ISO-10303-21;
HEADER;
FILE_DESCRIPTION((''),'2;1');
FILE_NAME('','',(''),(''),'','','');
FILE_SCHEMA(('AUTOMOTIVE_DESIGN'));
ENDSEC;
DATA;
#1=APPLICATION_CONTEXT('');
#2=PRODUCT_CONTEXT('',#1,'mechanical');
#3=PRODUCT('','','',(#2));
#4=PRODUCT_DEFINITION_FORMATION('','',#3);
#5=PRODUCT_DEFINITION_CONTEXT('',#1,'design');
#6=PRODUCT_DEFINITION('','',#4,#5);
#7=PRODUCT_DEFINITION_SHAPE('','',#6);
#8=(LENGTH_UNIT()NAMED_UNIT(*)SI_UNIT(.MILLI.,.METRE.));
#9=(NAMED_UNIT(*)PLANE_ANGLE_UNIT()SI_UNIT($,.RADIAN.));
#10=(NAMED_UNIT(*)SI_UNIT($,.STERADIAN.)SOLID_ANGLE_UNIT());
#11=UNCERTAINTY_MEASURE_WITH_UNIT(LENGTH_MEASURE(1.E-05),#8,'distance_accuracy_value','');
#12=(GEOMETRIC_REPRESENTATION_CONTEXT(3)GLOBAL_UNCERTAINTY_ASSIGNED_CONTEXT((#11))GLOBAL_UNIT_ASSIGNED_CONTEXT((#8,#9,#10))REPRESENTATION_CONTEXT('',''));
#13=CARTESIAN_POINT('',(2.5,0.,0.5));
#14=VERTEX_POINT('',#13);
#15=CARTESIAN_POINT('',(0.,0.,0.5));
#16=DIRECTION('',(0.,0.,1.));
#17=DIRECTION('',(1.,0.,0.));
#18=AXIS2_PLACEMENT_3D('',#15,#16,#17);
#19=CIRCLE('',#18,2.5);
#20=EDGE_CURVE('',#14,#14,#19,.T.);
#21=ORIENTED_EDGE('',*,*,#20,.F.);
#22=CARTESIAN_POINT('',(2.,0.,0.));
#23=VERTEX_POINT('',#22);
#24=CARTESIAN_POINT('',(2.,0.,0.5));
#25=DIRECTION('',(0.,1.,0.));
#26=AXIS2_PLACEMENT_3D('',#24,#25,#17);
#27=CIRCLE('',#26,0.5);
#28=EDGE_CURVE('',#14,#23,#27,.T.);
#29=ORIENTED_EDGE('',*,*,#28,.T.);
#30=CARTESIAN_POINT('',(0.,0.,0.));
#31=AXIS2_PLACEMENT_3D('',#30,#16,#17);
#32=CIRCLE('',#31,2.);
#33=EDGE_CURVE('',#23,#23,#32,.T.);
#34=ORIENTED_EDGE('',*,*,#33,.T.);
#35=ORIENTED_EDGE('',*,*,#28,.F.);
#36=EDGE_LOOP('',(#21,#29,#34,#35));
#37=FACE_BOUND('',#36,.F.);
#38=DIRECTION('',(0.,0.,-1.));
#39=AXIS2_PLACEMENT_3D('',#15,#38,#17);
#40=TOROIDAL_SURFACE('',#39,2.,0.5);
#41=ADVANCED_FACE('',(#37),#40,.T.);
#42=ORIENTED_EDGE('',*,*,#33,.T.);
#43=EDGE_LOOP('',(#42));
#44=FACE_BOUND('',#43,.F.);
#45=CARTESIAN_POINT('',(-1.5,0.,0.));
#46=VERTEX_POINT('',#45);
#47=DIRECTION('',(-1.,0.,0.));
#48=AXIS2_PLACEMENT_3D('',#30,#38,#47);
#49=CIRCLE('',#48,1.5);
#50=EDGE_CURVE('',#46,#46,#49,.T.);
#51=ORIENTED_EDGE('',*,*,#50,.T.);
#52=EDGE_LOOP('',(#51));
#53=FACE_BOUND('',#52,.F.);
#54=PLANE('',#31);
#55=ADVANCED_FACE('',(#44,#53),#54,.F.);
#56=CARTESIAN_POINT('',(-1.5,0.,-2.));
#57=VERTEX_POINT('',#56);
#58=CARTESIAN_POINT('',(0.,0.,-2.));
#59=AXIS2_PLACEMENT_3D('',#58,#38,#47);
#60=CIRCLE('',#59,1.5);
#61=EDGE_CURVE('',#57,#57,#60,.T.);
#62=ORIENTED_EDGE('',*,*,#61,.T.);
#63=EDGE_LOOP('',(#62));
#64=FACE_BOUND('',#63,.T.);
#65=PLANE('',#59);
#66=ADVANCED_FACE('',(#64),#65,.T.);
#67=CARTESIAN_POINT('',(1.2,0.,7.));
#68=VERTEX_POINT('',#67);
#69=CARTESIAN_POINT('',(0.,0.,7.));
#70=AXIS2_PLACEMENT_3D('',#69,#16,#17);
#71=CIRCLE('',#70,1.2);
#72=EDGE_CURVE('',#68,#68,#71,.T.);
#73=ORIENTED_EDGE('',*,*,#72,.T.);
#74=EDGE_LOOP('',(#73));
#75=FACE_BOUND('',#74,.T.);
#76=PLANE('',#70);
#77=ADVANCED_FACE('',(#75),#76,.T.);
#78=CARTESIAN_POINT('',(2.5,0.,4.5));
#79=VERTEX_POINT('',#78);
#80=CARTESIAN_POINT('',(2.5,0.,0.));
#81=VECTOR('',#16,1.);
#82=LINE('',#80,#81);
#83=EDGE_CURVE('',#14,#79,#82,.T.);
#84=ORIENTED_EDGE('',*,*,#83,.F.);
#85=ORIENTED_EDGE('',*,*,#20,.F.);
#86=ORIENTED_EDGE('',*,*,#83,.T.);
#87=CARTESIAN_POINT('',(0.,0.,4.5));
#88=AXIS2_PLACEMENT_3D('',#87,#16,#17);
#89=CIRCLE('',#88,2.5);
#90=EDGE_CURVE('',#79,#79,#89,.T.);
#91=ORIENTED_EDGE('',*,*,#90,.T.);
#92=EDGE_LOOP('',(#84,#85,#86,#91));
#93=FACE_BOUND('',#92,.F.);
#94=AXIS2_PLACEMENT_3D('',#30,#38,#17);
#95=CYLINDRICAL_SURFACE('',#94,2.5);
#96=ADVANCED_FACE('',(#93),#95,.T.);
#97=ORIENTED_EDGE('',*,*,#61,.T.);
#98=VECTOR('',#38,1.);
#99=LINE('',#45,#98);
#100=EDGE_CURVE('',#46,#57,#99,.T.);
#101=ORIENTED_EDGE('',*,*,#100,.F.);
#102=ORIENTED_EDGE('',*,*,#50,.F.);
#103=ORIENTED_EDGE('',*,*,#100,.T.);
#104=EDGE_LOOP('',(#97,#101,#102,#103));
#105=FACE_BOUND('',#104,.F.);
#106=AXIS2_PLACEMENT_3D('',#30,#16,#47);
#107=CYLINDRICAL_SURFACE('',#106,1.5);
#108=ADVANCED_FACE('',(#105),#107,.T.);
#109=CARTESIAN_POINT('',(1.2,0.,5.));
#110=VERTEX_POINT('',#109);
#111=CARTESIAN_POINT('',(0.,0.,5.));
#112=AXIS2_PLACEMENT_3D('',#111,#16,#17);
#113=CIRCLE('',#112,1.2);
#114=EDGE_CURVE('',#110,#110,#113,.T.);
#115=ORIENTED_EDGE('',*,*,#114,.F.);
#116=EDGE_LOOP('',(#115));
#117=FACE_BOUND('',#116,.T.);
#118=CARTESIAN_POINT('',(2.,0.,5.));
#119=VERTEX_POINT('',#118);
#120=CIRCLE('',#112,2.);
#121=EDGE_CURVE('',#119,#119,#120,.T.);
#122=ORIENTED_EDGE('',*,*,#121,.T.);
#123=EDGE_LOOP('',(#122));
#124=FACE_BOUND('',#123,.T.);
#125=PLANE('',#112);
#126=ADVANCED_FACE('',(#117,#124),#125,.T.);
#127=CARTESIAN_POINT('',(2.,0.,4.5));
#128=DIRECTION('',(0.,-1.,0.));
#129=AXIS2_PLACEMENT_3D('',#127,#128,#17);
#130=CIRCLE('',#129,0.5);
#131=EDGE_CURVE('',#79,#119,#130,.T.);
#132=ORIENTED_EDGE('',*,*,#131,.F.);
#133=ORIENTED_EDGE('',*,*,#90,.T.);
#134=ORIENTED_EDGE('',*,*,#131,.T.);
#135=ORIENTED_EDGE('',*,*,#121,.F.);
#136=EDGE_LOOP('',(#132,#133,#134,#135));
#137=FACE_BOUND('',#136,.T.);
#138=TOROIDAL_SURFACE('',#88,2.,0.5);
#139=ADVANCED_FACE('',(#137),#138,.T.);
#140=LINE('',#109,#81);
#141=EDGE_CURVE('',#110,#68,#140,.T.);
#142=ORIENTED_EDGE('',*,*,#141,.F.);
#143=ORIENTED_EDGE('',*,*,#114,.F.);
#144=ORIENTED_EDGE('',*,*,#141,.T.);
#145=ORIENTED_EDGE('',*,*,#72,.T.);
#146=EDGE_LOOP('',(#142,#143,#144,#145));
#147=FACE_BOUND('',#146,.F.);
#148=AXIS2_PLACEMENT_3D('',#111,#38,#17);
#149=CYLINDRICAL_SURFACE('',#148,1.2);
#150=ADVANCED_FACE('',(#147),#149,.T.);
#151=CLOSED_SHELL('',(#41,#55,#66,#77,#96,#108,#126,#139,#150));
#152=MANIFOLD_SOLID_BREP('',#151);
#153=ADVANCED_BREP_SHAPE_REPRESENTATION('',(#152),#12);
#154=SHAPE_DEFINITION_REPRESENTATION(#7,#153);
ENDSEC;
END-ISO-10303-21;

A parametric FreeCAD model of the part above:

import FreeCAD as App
import Part
import Sketcher

V = App.Vector
Q = App.Units.Quantity


def edges_at(feature, points):
    """Names of the edges that pass closest to the given points."""
    edges = feature.Shape.Edges
    near = lambda p: min(range(len(edges)), key=lambda i: edges[i].distToShape(Part.Vertex(*p))[0])
    return sorted({f"Edge{near(p) + 1}" for p in points})

doc = App.newDocument("Part")
body = doc.addObject("PartDesign::Body", "Body")

sketch1 = doc.addObject("Sketcher::SketchObject", "Sketch")
body.addObject(sketch1)
sketch1.AttachmentSupport = (doc.XY_Plane, [""])
sketch1.MapMode = "FlatFace"
sketch1.addGeometry(Part.Circle(V(0, 0, 0), V(0, 0, 1), 2.5), False)
sketch1.addConstraint([
    Sketcher.Constraint("Coincident", 0, 3, -1, 1),
    Sketcher.Constraint("Diameter", 0, Q("5 mm")),
])
pad1 = doc.addObject("PartDesign::Pad", "Pad")
body.addObject(pad1)
pad1.Profile = sketch1
pad1.Length = 5

sketch2 = doc.addObject("Sketcher::SketchObject", "Sketch001")
body.addObject(sketch2)
sketch2.AttachmentSupport = (doc.XY_Plane, [""])
sketch2.MapMode = "FlatFace"
sketch2.AttachmentOffset = App.Placement(V(0, 0, 5), App.Rotation())
sketch2.addGeometry(Part.Circle(V(0, 0, 0), V(0, 0, 1), 1.2), False)
sketch2.addConstraint([
    Sketcher.Constraint("Coincident", 0, 3, -1, 1),
    Sketcher.Constraint("Diameter", 0, Q("2.4 mm")),
])
pad2 = doc.addObject("PartDesign::Pad", "Pad001")
body.addObject(pad2)
pad2.Profile = sketch2
pad2.Length = 2
doc.recompute()

fillet = doc.addObject("PartDesign::Fillet", "Fillet")
body.addObject(fillet)
fillet.Base = (pad2, edges_at(pad2, [(-2.5, 0, 5), (-2.5, 0, 0)]))
fillet.Radius = 0.5

sketch3 = doc.addObject("Sketcher::SketchObject", "Sketch002")
body.addObject(sketch3)
sketch3.AttachmentSupport = (doc.XY_Plane, [""])
sketch3.MapMode = "FlatFace"
sketch3.addGeometry(Part.Circle(V(0, 0, 0), V(0, 0, 1), 1.5), False)
sketch3.addConstraint([
    Sketcher.Constraint("Coincident", 0, 3, -1, 1),
    Sketcher.Constraint("Diameter", 0, Q("3 mm")),
])
pad3 = doc.addObject("PartDesign::Pad", "Pad002")
body.addObject(pad3)
pad3.Profile = sketch3
pad3.Length = 2
pad3.Reversed = True

doc.recompute()
